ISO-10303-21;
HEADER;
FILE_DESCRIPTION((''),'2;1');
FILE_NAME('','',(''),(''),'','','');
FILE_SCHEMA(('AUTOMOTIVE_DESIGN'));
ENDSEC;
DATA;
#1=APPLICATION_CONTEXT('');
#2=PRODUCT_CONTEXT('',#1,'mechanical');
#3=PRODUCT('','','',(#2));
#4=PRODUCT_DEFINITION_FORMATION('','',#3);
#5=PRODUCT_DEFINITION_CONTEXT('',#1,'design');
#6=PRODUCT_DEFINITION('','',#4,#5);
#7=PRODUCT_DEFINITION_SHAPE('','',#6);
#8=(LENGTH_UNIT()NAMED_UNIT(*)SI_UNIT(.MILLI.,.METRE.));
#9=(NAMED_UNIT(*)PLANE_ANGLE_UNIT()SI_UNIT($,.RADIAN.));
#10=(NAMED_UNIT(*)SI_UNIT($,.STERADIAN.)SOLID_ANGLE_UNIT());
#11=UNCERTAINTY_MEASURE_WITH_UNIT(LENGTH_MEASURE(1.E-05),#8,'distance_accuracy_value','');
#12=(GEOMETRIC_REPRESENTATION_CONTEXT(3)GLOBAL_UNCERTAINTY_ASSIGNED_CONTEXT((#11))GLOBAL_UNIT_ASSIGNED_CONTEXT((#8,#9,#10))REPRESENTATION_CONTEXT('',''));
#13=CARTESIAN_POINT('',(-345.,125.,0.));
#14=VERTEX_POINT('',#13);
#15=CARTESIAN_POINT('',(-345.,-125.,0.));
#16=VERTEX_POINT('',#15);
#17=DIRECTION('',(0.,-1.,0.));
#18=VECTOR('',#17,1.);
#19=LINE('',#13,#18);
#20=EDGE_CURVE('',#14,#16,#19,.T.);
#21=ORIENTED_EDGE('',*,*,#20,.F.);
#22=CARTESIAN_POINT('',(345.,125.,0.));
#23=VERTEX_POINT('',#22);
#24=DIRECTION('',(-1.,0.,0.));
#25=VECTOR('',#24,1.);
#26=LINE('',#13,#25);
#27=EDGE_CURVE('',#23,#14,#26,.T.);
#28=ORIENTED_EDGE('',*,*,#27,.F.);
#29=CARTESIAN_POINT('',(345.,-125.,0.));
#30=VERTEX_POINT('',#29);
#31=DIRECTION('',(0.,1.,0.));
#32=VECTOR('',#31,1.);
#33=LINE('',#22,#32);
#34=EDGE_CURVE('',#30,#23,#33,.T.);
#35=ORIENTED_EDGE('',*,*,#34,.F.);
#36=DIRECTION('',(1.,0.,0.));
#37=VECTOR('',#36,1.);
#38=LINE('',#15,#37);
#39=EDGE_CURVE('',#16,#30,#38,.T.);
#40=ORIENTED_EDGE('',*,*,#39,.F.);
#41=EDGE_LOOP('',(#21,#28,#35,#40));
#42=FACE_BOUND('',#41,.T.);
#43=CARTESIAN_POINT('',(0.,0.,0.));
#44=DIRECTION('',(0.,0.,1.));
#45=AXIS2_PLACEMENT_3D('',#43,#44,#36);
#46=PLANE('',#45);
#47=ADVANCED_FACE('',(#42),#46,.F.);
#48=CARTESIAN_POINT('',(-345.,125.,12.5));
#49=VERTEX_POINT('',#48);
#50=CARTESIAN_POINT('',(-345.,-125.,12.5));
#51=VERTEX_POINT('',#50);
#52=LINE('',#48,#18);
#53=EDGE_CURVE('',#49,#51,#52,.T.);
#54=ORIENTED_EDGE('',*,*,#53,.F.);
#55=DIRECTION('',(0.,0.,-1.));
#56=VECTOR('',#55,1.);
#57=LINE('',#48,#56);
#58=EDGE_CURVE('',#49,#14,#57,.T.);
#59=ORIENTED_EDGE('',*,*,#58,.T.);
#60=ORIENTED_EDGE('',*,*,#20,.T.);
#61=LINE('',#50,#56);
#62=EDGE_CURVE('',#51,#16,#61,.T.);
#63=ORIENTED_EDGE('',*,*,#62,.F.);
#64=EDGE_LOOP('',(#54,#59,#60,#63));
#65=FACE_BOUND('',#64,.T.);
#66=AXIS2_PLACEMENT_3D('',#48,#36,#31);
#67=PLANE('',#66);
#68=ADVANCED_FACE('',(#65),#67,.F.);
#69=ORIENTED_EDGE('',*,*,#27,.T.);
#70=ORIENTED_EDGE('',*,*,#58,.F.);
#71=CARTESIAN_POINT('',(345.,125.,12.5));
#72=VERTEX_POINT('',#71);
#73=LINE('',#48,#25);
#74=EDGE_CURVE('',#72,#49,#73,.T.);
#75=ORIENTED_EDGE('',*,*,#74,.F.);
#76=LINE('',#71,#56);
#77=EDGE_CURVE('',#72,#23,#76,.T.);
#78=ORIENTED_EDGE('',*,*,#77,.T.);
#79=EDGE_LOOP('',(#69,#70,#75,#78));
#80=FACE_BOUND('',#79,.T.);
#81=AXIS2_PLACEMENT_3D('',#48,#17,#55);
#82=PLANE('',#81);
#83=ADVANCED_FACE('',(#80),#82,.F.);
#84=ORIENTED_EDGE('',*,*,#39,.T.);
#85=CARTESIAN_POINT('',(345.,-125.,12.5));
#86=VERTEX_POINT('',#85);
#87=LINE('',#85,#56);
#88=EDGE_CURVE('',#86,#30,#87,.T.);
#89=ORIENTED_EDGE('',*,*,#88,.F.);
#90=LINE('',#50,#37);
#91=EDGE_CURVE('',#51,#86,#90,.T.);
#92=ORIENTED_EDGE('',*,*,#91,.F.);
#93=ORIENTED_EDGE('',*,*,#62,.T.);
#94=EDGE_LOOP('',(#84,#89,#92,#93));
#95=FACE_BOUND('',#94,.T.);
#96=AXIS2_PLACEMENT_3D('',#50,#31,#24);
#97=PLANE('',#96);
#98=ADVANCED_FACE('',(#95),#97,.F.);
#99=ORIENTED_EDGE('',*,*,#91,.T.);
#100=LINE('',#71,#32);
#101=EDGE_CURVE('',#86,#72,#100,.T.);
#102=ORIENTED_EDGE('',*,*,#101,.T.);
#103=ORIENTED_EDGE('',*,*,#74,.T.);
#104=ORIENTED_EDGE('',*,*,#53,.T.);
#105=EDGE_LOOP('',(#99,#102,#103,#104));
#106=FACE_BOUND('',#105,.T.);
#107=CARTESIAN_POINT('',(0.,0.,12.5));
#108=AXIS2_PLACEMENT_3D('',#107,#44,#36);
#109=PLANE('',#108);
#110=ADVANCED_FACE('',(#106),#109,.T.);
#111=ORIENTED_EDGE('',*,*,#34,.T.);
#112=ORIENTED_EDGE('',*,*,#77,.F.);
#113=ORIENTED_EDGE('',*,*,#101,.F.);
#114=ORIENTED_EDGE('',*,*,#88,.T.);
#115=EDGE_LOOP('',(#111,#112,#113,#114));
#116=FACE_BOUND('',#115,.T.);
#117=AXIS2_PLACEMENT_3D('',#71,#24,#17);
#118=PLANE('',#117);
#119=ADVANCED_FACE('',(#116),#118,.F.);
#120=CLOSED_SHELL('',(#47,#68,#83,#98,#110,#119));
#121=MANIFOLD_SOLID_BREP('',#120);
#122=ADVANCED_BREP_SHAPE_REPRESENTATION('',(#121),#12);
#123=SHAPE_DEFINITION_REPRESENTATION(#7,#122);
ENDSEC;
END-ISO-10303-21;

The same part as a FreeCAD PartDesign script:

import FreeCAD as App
import Part
import Sketcher
from FreeCAD import Vector

doc = App.newDocument("Part")
body = doc.addObject("PartDesign::Body", "Body")

# Sketch on XY plane
sketch1 = body.newObject("Sketcher::SketchObject", "Sketch")
sketch1.AttachmentSupport = (doc.getObject("XY_Plane"), [""])
sketch1.MapMode = "FlatFace"
sketch1.addGeometry([
    Part.LineSegment(Vector(-345, 125, 0), Vector(-345, -125, 0)),
    Part.LineSegment(Vector(-345, -125, 0), Vector(345, -125, 0)),
    Part.LineSegment(Vector(345, -125, 0), Vector(345, 125, 0)),
    Part.LineSegment(Vector(345, 125, 0), Vector(-345, 125, 0)),
], False)
sketch1.addConstraint([
    Sketcher.Constraint("Coincident", 0, 2, 1, 1),
    Sketcher.Constraint("Coincident", 1, 2, 2, 1),
    Sketcher.Constraint("Coincident", 2, 2, 3, 1),
    Sketcher.Constraint("Coincident", 3, 2, 0, 1),
    Sketcher.Constraint("Vertical", 0),
    Sketcher.Constraint("Horizontal", 1),
    Sketcher.Constraint("Vertical", 2),
    Sketcher.Constraint("Horizontal", 3),
    Sketcher.Constraint("Symmetric", 0, 2, 2, 2, -1, 1),
    Sketcher.Constraint("DistanceX", 1, 1, 1, 2, 690.0),
    Sketcher.Constraint("DistanceY", 0, 2, 0, 1, 250.0),
])
pad1 = body.newObject("PartDesign::Pad", "Pad")
pad1.Profile = sketch1
pad1.Length = 12.5

doc.recompute()
